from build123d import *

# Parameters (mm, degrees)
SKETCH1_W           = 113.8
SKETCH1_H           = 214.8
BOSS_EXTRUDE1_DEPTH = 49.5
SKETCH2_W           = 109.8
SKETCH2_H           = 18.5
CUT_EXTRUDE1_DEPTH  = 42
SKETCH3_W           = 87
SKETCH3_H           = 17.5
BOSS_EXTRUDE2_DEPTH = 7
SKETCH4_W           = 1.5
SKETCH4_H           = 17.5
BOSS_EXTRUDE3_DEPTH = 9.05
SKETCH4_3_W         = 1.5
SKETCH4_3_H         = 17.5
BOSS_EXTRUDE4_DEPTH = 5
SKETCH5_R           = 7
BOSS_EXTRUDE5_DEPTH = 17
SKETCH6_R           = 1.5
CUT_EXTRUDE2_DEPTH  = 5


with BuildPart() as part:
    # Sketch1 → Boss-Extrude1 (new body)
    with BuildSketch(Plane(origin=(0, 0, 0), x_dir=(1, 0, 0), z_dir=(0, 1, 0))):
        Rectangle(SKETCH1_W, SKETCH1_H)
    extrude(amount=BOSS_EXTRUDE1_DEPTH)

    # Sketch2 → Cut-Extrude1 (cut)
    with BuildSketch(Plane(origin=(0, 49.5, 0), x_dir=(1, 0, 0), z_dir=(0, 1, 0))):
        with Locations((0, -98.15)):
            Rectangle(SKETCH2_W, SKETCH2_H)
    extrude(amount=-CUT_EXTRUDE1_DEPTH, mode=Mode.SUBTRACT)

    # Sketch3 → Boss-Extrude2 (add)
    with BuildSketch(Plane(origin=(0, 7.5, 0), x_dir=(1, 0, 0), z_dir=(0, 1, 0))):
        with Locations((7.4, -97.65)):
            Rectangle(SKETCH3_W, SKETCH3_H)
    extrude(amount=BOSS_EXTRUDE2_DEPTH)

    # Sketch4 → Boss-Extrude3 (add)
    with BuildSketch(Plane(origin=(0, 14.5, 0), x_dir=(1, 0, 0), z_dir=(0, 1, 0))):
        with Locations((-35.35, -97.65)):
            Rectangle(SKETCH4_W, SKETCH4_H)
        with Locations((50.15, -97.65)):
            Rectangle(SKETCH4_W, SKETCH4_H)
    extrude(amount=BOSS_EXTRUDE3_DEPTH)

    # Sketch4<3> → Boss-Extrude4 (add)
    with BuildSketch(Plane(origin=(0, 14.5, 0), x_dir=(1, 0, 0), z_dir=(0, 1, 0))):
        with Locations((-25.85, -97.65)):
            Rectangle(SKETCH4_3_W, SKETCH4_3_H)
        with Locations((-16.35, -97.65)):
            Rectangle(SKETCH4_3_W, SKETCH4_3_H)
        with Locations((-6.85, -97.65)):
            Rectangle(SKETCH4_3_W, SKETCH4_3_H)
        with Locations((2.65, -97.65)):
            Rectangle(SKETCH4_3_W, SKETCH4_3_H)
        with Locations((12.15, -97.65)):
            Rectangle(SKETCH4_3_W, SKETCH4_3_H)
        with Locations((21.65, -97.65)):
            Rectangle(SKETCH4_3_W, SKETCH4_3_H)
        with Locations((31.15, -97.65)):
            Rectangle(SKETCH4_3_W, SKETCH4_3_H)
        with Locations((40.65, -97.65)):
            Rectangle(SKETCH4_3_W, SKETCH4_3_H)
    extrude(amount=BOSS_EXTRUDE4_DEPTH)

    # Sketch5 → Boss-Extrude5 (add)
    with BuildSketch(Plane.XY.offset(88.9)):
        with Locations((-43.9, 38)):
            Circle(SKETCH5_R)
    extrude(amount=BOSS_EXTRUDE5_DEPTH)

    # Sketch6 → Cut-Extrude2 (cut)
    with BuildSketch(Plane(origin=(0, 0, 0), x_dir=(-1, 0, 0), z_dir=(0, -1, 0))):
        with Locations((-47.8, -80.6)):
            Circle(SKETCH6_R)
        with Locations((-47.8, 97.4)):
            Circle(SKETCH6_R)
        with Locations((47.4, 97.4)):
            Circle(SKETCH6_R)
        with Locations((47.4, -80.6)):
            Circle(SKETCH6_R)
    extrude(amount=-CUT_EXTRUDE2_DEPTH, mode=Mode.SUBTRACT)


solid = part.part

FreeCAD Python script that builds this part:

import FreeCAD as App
import Part
import Sketcher

V = App.Vector
Q = App.Units.Quantity

doc = App.newDocument("Part")
params = doc.addObject("Spreadsheet::Sheet", "Params")
for row, (alias, value) in enumerate([
    ("sketch1_width", "113.8 mm"),
    ("sketch1_height", "214.8 mm"),
    ("pad1_length", "49.5 mm"),
    ("sketch2_width", "109.8 mm"),
    ("sketch2_height", "18.5 mm"),
    ("pocket1_length", "42 mm"),
    ("sketch3_width", "87 mm"),
    ("sketch3_height", "17.5 mm"),
    ("pad2_length", "7 mm"),
    ("sketch4_width", "1.5 mm"),
    ("sketch4_height", "17.5 mm"),
    ("pad3_length", "9.05 mm"),
    ("sketch5_width", "1.5 mm"),
    ("sketch5_height", "17.5 mm"),
    ("pad4_length", "5 mm"),
    ("sketch6_diameter", "14 mm"),
    ("pad5_length", "17 mm"),
    ("sketch7_diameter", "3 mm"),
    ("pocket2_length", "5 mm"),
], start=1):
    params.set(f"A{row}", alias)
    params.set(f"B{row}", "=" + value)
    params.setAlias(f"B{row}", alias)

body = doc.addObject("PartDesign::Body", "Body")

# Sketch on XZ plane
sketch1 = body.newObject("Sketcher::SketchObject", "Sketch")
sketch1.AttachmentSupport = (doc.getObject("XZ_Plane"), [""])
sketch1.MapMode = "FlatFace"
sketch1.addGeometry([
    Part.LineSegment(V(-57, -107, 0), V(-57, 107, 0)),
    Part.LineSegment(V(-57, 107, 0), V(57, 107, 0)),
    Part.LineSegment(V(57, 107, 0), V(57, -107, 0)),
    Part.LineSegment(V(57, -107, 0), V(-57, -107, 0)),
], False)
sketch1.addConstraint([
    Sketcher.Constraint("Coincident", 0, 2, 1, 1),
    Sketcher.Constraint("Coincident", 1, 2, 2, 1),
    Sketcher.Constraint("Coincident", 2, 2, 3, 1),
    Sketcher.Constraint("Coincident", 3, 2, 0, 1),
    Sketcher.Constraint("Vertical", 0),
    Sketcher.Constraint("Horizontal", 1),
    Sketcher.Constraint("Vertical", 2),
    Sketcher.Constraint("Horizontal", 3),
    Sketcher.Constraint("Symmetric", 0, 2, 2, 2, -1, 1),
    Sketcher.Constraint("DistanceX", 1, 1, 1, 2, Q("113.8 mm")),
    Sketcher.Constraint("DistanceY", 0, 1, 0, 2, Q("214.8 mm")),
])
sketch1.setExpression("Constraints[9]", "Params.sketch1_width")
sketch1.setExpression("Constraints[10]", "Params.sketch1_height")
pad1 = body.newObject("PartDesign::Pad", "Pad")
pad1.Profile = sketch1
pad1.setExpression("Length", "Params.pad1_length")
pad1.Reversed = True

# Sketch on XZ plane
sketch2 = body.newObject("Sketcher::SketchObject", "Sketch001")
sketch2.AttachmentSupport = (doc.getObject("XZ_Plane"), [""])
sketch2.MapMode = "FlatFace"
sketch2.AttachmentOffset = App.Placement(V(0, 0, -49.5), App.Rotation())
sketch2.addGeometry([
    Part.LineSegment(V(-55, 89, 0), V(-55, 107, 0)),
    Part.LineSegment(V(-55, 107, 0), V(55, 107, 0)),
    Part.LineSegment(V(55, 107, 0), V(55, 89, 0)),
    Part.LineSegment(V(55, 89, 0), V(-55, 89, 0)),
], False)
sketch2.addConstraint([
    Sketcher.Constraint("Coincident", 0, 2, 1, 1),
    Sketcher.Constraint("Coincident", 1, 2, 2, 1),
    Sketcher.Constraint("Coincident", 2, 2, 3, 1),
    Sketcher.Constraint("Coincident", 3, 2, 0, 1),
    Sketcher.Constraint("Vertical", 0),
    Sketcher.Constraint("Horizontal", 1),
    Sketcher.Constraint("Vertical", 2),
    Sketcher.Constraint("Horizontal", 3),
    Sketcher.Constraint("DistanceX", 1, 1, 1, 2, Q("109.8 mm")),
    Sketcher.Constraint("DistanceY", 0, 1, 0, 2, Q("18.5 mm")),
    Sketcher.Constraint("DistanceX", 0, 2, -1, 1, Q("54.9 mm")),
    Sketcher.Constraint("DistanceY", -1, 1, 0, 2, Q("107.4 mm")),
])
sketch2.setExpression("Constraints[8]", "Params.sketch2_width")
sketch2.setExpression("Constraints[9]", "Params.sketch2_height")
pocket1 = body.newObject("PartDesign::Pocket", "Pocket")
pocket1.Profile = sketch2
pocket1.setExpression("Length", "Params.pocket1_length")
pocket1.Reversed = True

# Sketch on XZ plane
sketch3 = body.newObject("Sketcher::SketchObject", "Sketch002")
sketch3.AttachmentSupport = (doc.getObject("XZ_Plane"), [""])
sketch3.MapMode = "FlatFace"
sketch3.AttachmentOffset = App.Placement(V(0, 0, -7.5), App.Rotation())
sketch3.addGeometry([
    Part.LineSegment(V(-36, 89, 0), V(-36, 106, 0)),
    Part.LineSegment(V(-36, 106, 0), V(51, 106, 0)),
    Part.LineSegment(V(51, 106, 0), V(51, 89, 0)),
    Part.LineSegment(V(51, 89, 0), V(-36, 89, 0)),
], False)
sketch3.addConstraint([
    Sketcher.Constraint("Coincident", 0, 2, 1, 1),
    Sketcher.Constraint("Coincident", 1, 2, 2, 1),
    Sketcher.Constraint("Coincident", 2, 2, 3, 1),
    Sketcher.Constraint("Coincident", 3, 2, 0, 1),
    Sketcher.Constraint("Vertical", 0),
    Sketcher.Constraint("Horizontal", 1),
    Sketcher.Constraint("Vertical", 2),
    Sketcher.Constraint("Horizontal", 3),
    Sketcher.Constraint("DistanceX", 1, 1, 1, 2, Q("87 mm")),
    Sketcher.Constraint("DistanceY", 0, 1, 0, 2, Q("17.5 mm")),
    Sketcher.Constraint("DistanceX", 0, 2, -1, 1, Q("36.1 mm")),
    Sketcher.Constraint("DistanceY", -1, 1, 0, 2, Q("106.4 mm")),
])
sketch3.setExpression("Constraints[8]", "Params.sketch3_width")
sketch3.setExpression("Constraints[9]", "Params.sketch3_height")
pad2 = body.newObject("PartDesign::Pad", "Pad001")
pad2.Profile = sketch3
pad2.setExpression("Length", "Params.pad2_length")
pad2.Reversed = True

# Sketch on XZ plane
sketch4 = body.newObject("Sketcher::SketchObject", "Sketch003")
sketch4.AttachmentSupport = (doc.getObject("XZ_Plane"), [""])
sketch4.MapMode = "FlatFace"
sketch4.AttachmentOffset = App.Placement(V(0, 0, -14.5), App.Rotation())
sketch4.addGeometry([
    Part.LineSegment(V(-36.1, 88.9, 0), V(-36.1, 106.4, 0)),  # 0
    Part.LineSegment(V(-36.1, 106.4, 0), V(-34.6, 106.4, 0)),  # 1
    Part.LineSegment(V(-34.6, 106.4, 0), V(-34.6, 88.9, 0)),  # 2
    Part.LineSegment(V(-34.6, 88.9, 0), V(-36.1, 88.9, 0)),  # 3
    Part.LineSegment(V(49.4, 88.9, 0), V(49.4, 106.4, 0)),  # 4
    Part.LineSegment(V(49.4, 106.4, 0), V(50.9, 106.4, 0)),  # 5
    Part.LineSegment(V(50.9, 106.4, 0), V(50.9, 88.9, 0)),  # 6
    Part.LineSegment(V(50.9, 88.9, 0), V(49.4, 88.9, 0)),  # 7
], False)
sketch4.addConstraint([
    Sketcher.Constraint("Coincident", 0, 2, 1, 1),
    Sketcher.Constraint("Coincident", 1, 2, 2, 1),
    Sketcher.Constraint("Coincident", 2, 2, 3, 1),
    Sketcher.Constraint("Coincident", 3, 2, 0, 1),
    Sketcher.Constraint("Coincident", 4, 2, 5, 1),
    Sketcher.Constraint("Coincident", 5, 2, 6, 1),
    Sketcher.Constraint("Coincident", 6, 2, 7, 1),
    Sketcher.Constraint("Coincident", 7, 2, 4, 1),
    Sketcher.Constraint("Vertical", 0),
    Sketcher.Constraint("Horizontal", 1),
    Sketcher.Constraint("Vertical", 2),
    Sketcher.Constraint("Horizontal", 3),
    Sketcher.Constraint("Vertical", 4),
    Sketcher.Constraint("Horizontal", 5),
    Sketcher.Constraint("Vertical", 6),
    Sketcher.Constraint("Horizontal", 7),
    Sketcher.Constraint("Horizontal", 1, 2, 4, 2),
    Sketcher.Constraint("Horizontal", 3, 2, 6, 2),
    Sketcher.Constraint("Equal", 3, 5),
    Sketcher.Constraint("DistanceX", 1, 1, 1, 2, Q("1.5 mm")),
    Sketcher.Constraint("DistanceY", 0, 1, 0, 2, Q("17.5 mm")),
    Sketcher.Constraint("DistanceX", 1, 2, 4, 2, Q("84 mm")),
    Sketcher.Constraint("DistanceX", 0, 2, -1, 1, Q("36.1 mm")),
    Sketcher.Constraint("DistanceY", -1, 1, 0, 2, Q("106.4 mm")),
])
sketch4.setExpression("Constraints[19]", "Params.sketch4_width")
sketch4.setExpression("Constraints[20]", "Params.sketch4_height")
pad3 = body.newObject("PartDesign::Pad", "Pad002")
pad3.Profile = sketch4
pad3.setExpression("Length", "Params.pad3_length")
pad3.Reversed = True

# Sketch on XZ plane
sketch5 = body.newObject("Sketcher::SketchObject", "Sketch004")
sketch5.AttachmentSupport = (doc.getObject("XZ_Plane"), [""])
sketch5.MapMode = "FlatFace"
sketch5.AttachmentOffset = App.Placement(V(0, 0, -14.5), App.Rotation())
sketch5.addGeometry([
    Part.LineSegment(V(-26.6, 88.9, 0), V(-26.6, 106.4, 0)),  # 0
    Part.LineSegment(V(-26.6, 106.4, 0), V(-25.1, 106.4, 0)),  # 1
    Part.LineSegment(V(-25.1, 106.4, 0), V(-25.1, 88.9, 0)),  # 2
    Part.LineSegment(V(-25.1, 88.9, 0), V(-26.6, 88.9, 0)),  # 3
    Part.LineSegment(V(-17.1, 88.9, 0), V(-17.1, 106.4, 0)),  # 4
    Part.LineSegment(V(-17.1, 106.4, 0), V(-15.6, 106.4, 0)),  # 5
    Part.LineSegment(V(-15.6, 106.4, 0), V(-15.6, 88.9, 0)),  # 6
    Part.LineSegment(V(-15.6, 88.9, 0), V(-17.1, 88.9, 0)),  # 7
    Part.LineSegment(V(-7.6, 88.9, 0), V(-7.6, 106.4, 0)),  # 8
    Part.LineSegment(V(-7.6, 106.4, 0), V(-6.1, 106.4, 0)),  # 9
    Part.LineSegment(V(-6.1, 106.4, 0), V(-6.1, 88.9, 0)),  # 10
    Part.LineSegment(V(-6.1, 88.9, 0), V(-7.6, 88.9, 0)),  # 11
    Part.LineSegment(V(1.9, 88.9, 0), V(1.9, 106.4, 0)),  # 12
    Part.LineSegment(V(1.9, 106.4, 0), V(3.4, 106.4, 0)),  # 13
    Part.LineSegment(V(3.4, 106.4, 0), V(3.4, 88.9, 0)),  # 14
    Part.LineSegment(V(3.4, 88.9, 0), V(1.9, 88.9, 0)),  # 15
    Part.LineSegment(V(11.4, 88.9, 0), V(11.4, 106.4, 0)),  # 16
    Part.LineSegment(V(11.4, 106.4, 0), V(12.9, 106.4, 0)),  # 17
    Part.LineSegment(V(12.9, 106.4, 0), V(12.9, 88.9, 0)),  # 18
    Part.LineSegment(V(12.9, 88.9, 0), V(11.4, 88.9, 0)),  # 19
    Part.LineSegment(V(20.9, 88.9, 0), V(20.9, 106.4, 0)),  # 20
    Part.LineSegment(V(20.9, 106.4, 0), V(22.4, 106.4, 0)),  # 21
    Part.LineSegment(V(22.4, 106.4, 0), V(22.4, 88.9, 0)),  # 22
    Part.LineSegment(V(22.4, 88.9, 0), V(20.9, 88.9, 0)),  # 23
    Part.LineSegment(V(30.4, 88.9, 0), V(30.4, 106.4, 0)),  # 24
    Part.LineSegment(V(30.4, 106.4, 0), V(31.9, 106.4, 0)),  # 25
    Part.LineSegment(V(31.9, 106.4, 0), V(31.9, 88.9, 0)),  # 26
    Part.LineSegment(V(31.9, 88.9, 0), V(30.4, 88.9, 0)),  # 27
    Part.LineSegment(V(39.9, 88.9, 0), V(39.9, 106.4, 0)),  # 28
    Part.LineSegment(V(39.9, 106.4, 0), V(41.4, 106.4, 0)),  # 29
    Part.LineSegment(V(41.4, 106.4, 0), V(41.4, 88.9, 0)),  # 30
    Part.LineSegment(V(41.4, 88.9, 0), V(39.9, 88.9, 0)),  # 31
], False)
sketch5.addConstraint([
    Sketcher.Constraint("Coincident", 0, 2, 1, 1),
    Sketcher.Constraint("Coincident", 1, 2, 2, 1),
    Sketcher.Constraint("Coincident", 2, 2, 3, 1),
    Sketcher.Constraint("Coincident", 3, 2, 0, 1),
    Sketcher.Constraint("Coincident", 4, 2, 5, 1),
    Sketcher.Constraint("Coincident", 5, 2, 6, 1),
    Sketcher.Constraint("Coincident", 6, 2, 7, 1),
    Sketcher.Constraint("Coincident", 7, 2, 4, 1),
    Sketcher.Constraint("Coincident", 8, 2, 9, 1),
    Sketcher.Constraint("Coincident", 9, 2, 10, 1),
    Sketcher.Constraint("Coincident", 10, 2, 11, 1),
    Sketcher.Constraint("Coincident", 11, 2, 8, 1),
    Sketcher.Constraint("Coincident", 12, 2, 13, 1),
    Sketcher.Constraint("Coincident", 13, 2, 14, 1),
    Sketcher.Constraint("Coincident", 14, 2, 15, 1),
    Sketcher.Constraint("Coincident", 15, 2, 12, 1),
    Sketcher.Constraint("Coincident", 16, 2, 17, 1),
    Sketcher.Constraint("Coincident", 17, 2, 18, 1),
    Sketcher.Constraint("Coincident", 18, 2, 19, 1),
    Sketcher.Constraint("Coincident", 19, 2, 16, 1),
    Sketcher.Constraint("Coincident", 20, 2, 21, 1),
    Sketcher.Constraint("Coincident", 21, 2, 22, 1),
    Sketcher.Constraint("Coincident", 22, 2, 23, 1),
    Sketcher.Constraint("Coincident", 23, 2, 20, 1),
    Sketcher.Constraint("Coincident", 24, 2, 25, 1),
    Sketcher.Constraint("Coincident", 25, 2, 26, 1),
    Sketcher.Constraint("Coincident", 26, 2, 27, 1),
    Sketcher.Constraint("Coincident", 27, 2, 24, 1),
    Sketcher.Constraint("Coincident", 28, 2, 29, 1),
    Sketcher.Constraint("Coincident", 29, 2, 30, 1),
    Sketcher.Constraint("Coincident", 30, 2, 31, 1),
    Sketcher.Constraint("Coincident", 31, 2, 28, 1),
    Sketcher.Constraint("Vertical", 0),
    Sketcher.Constraint("Horizontal", 1),
    Sketcher.Constraint("Vertical", 2),
    Sketcher.Constraint("Horizontal", 3),
    Sketcher.Constraint("Vertical", 4),
    Sketcher.Constraint("Horizontal", 5),
    Sketcher.Constraint("Vertical", 6),
    Sketcher.Constraint("Horizontal", 7),
    Sketcher.Constraint("Vertical", 8),
    Sketcher.Constraint("Horizontal", 9),
    Sketcher.Constraint("Vertical", 10),
    Sketcher.Constraint("Horizontal", 11),
    Sketcher.Constraint("Vertical", 12),
    Sketcher.Constraint("Horizontal", 13),
    Sketcher.Constraint("Vertical", 14),
    Sketcher.Constraint("Horizontal", 15),
    Sketcher.Constraint("Vertical", 16),
    Sketcher.Constraint("Horizontal", 17),
    Sketcher.Constraint("Vertical", 18),
    Sketcher.Constraint("Horizontal", 19),
    Sketcher.Constraint("Vertical", 20),
    Sketcher.Constraint("Horizontal", 21),
    Sketcher.Constraint("Vertical", 22),
    Sketcher.Constraint("Horizontal", 23),
    Sketcher.Constraint("Vertical", 24),
    Sketcher.Constraint("Horizontal", 25),
    Sketcher.Constraint("Vertical", 26),
    Sketcher.Constraint("Horizontal", 27),
    Sketcher.Constraint("Vertical", 28),
    Sketcher.Constraint("Horizontal", 29),
    Sketcher.Constraint("Vertical", 30),
    Sketcher.Constraint("Horizontal", 31),
    Sketcher.Constraint("Horizontal", 1, 2, 4, 2),
    Sketcher.Constraint("Horizontal", 3, 2, 6, 2),
    Sketcher.Constraint("Horizontal", 5, 2, 8, 2),
    Sketcher.Constraint("Horizontal", 7, 2, 10, 2),
    Sketcher.Constraint("Horizontal", 9, 2, 12, 2),
    Sketcher.Constraint("Horizontal", 11, 2, 14, 2),
    Sketcher.Constraint("Horizontal", 13, 2, 16, 2),
    Sketcher.Constraint("Horizontal", 15, 2, 18, 2),
    Sketcher.Constraint("Horizontal", 17, 2, 20, 2),
    Sketcher.Constraint("Horizontal", 19, 2, 22, 2),
    Sketcher.Constraint("Horizontal", 21, 2, 24, 2),
    Sketcher.Constraint("Horizontal", 23, 2, 26, 2),
    Sketcher.Constraint("Horizontal", 25, 2, 28, 2),
    Sketcher.Constraint("Horizontal", 27, 2, 30, 2),
    Sketcher.Constraint("Equal", 3, 5),
    Sketcher.Constraint("Equal", 7, 9),
    Sketcher.Constraint("Equal", 11, 13),
    Sketcher.Constraint("Equal", 15, 17),
    Sketcher.Constraint("Equal", 19, 21),
    Sketcher.Constraint("Equal", 23, 25),
    Sketcher.Constraint("Equal", 27, 29),
    Sketcher.Constraint("DistanceX", 1, 1, 1, 2, Q("1.5 mm")),
    Sketcher.Constraint("DistanceY", 0, 1, 0, 2, Q("17.5 mm")),
    Sketcher.Constraint("DistanceX", 1, 2, 4, 2, Q("8 mm")),
    Sketcher.Constraint("DistanceX", 5, 2, 8, 2, Q("8 mm")),
    Sketcher.Constraint("DistanceX", 9, 2, 12, 2, Q("8 mm")),
    Sketcher.Constraint("DistanceX", 13, 2, 16, 2, Q("8 mm")),
    Sketcher.Constraint("DistanceX", 17, 2, 20, 2, Q("8 mm")),
    Sketcher.Constraint("DistanceX", 21, 2, 24, 2, Q("8 mm")),
    Sketcher.Constraint("DistanceX", 25, 2, 28, 2, Q("8 mm")),
    Sketcher.Constraint("DistanceX", 0, 2, -1, 1, Q("26.6 mm")),
    Sketcher.Constraint("DistanceY", -1, 1, 0, 2, Q("106.4 mm")),
])
sketch5.setExpression("Constraints[85]", "Params.sketch5_width")
sketch5.setExpression("Constraints[86]", "Params.sketch5_height")
pad4 = body.newObject("PartDesign::Pad", "Pad003")
pad4.Profile = sketch5
pad4.setExpression("Length", "Params.pad4_length")
pad4.Reversed = True

# Sketch on XY plane
sketch6 = body.newObject("Sketcher::SketchObject", "Sketch005")
sketch6.AttachmentSupport = (doc.getObject("XY_Plane"), [""])
sketch6.MapMode = "FlatFace"
sketch6.AttachmentOffset = App.Placement(V(0, 0, 88.9), App.Rotation())
sketch6.addGeometry(Part.Circle(V(-44, 38, 0), V(0, 0, 1), 7), False)
sketch6.addConstraint([
    Sketcher.Constraint("Diameter", 0, Q("14 mm")),
    Sketcher.Constraint("DistanceY", -1, 1, 0, 3, Q("38 mm")),
    Sketcher.Constraint("DistanceX", 0, 3, -1, 1, Q("43.9 mm")),
])
sketch6.setExpression("Constraints[0]", "Params.sketch6_diameter")
pad5 = body.newObject("PartDesign::Pad", "Pad004")
pad5.Profile = sketch6
pad5.setExpression("Length", "Params.pad5_length")

# Sketch on XZ plane
sketch7 = body.newObject("Sketcher::SketchObject", "Sketch006")
sketch7.AttachmentSupport = (doc.getObject("XZ_Plane"), [""])
sketch7.MapMode = "FlatFace"
sketch7.addGeometry([
    Part.Circle(V(47.8, 80.6, 0), V(0, 0, 1), 1.5),
    Part.Circle(V(47.8, -97.4, 0), V(0, 0, 1), 1.5),
    Part.Circle(V(-47.4, -97.4, 0), V(0, 0, 1), 1.5),
    Part.Circle(V(-47.4, 80.6, 0), V(0, 0, 1), 1.5),
], False)
sketch7.addConstraint([
    Sketcher.Constraint("Equal", 0, 1),
    Sketcher.Constraint("Equal", 1, 2),
    Sketcher.Constraint("Equal", 2, 3),
    Sketcher.Constraint("Horizontal", 1, 3, 2, 3),
    Sketcher.Constraint("Horizontal", 0, 3, 3, 3),
    Sketcher.Constraint("Vertical", 0, 3, 1, 3),
    Sketcher.Constraint("Vertical", 2, 3, 3, 3),
    Sketcher.Constraint("Diameter", 0, Q("3 mm")),
    Sketcher.Constraint("DistanceY", 1, 3, 0, 3, Q("178 mm")),
    Sketcher.Constraint("DistanceX", -1, 1, 0, 3, Q("47.8 mm")),
    Sketcher.Constraint("DistanceY", -1, 1, 0, 3, Q("80.6 mm")),
    Sketcher.Constraint("DistanceX", 2, 3, -1, 1, Q("47.4 mm")),
])
sketch7.setExpression("Constraints[7]", "Params.sketch7_diameter")
pocket2 = body.newObject("PartDesign::Pocket", "Pocket001")
pocket2.Profile = sketch7
pocket2.setExpression("Length", "Params.pocket2_length")

doc.recompute()
